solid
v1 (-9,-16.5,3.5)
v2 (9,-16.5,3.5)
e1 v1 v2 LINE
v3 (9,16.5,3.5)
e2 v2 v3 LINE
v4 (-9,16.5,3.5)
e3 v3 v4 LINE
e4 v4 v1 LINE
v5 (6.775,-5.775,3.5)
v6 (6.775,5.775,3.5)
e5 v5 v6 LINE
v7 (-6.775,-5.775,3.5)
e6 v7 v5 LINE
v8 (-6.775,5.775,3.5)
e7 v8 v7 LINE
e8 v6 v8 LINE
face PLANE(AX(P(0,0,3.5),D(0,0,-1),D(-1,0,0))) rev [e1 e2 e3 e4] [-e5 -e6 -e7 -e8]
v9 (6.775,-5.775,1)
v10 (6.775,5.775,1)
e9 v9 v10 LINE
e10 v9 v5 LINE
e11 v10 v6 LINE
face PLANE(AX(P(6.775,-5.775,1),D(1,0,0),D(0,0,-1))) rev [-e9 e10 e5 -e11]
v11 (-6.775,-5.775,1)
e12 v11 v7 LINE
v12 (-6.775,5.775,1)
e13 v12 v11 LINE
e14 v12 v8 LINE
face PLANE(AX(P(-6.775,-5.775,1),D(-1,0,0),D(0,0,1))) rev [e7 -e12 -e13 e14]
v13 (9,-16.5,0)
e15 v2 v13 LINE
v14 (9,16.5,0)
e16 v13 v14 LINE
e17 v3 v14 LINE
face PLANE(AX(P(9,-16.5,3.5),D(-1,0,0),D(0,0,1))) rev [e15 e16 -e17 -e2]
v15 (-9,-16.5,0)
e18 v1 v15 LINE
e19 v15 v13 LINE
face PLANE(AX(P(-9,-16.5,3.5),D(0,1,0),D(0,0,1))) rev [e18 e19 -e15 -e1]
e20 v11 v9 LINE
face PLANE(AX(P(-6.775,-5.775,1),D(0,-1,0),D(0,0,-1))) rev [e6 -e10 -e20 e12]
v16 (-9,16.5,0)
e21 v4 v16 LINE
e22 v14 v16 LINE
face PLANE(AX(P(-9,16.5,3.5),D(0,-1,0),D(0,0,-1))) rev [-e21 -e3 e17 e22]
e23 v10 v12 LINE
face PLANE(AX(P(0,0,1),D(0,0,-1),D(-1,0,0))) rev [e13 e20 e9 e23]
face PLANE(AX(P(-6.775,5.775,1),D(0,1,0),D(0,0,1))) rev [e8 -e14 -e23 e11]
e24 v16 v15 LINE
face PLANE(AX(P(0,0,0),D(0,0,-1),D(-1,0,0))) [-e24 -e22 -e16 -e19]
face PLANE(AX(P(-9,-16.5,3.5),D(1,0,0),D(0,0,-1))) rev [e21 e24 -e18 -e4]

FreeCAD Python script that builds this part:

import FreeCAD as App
import Part
import Sketcher

V = App.Vector


def add_polygon(sketch, points):
    """Adds a closed chain of lines whose ends are joined by coincident constraints."""
    first, n = sketch.GeometryCount, len(points)
    for a, b in zip(points, points[1:] + points[:1]):
        sketch.addGeometry(Part.LineSegment(App.Vector(*a, 0), App.Vector(*b, 0)), False)
    for i in range(n):
        sketch.addConstraint(Sketcher.Constraint("Coincident", first + i, 2, first + (i + 1) % n, 1))

doc = App.newDocument("Part")
body = doc.addObject("PartDesign::Body", "Body")

sketch1 = doc.addObject("Sketcher::SketchObject", "Sketch")
body.addObject(sketch1)
sketch1.AttachmentSupport = (doc.XY_Plane, [""])
sketch1.MapMode = "FlatFace"
add_polygon(sketch1, [(-9, 16), (-9, -16), (9, -16), (9, 16)])
sketch1.addConstraint([
    Sketcher.Constraint("Vertical", 0),
    Sketcher.Constraint("Horizontal", 1),
    Sketcher.Constraint("Vertical", 2),
    Sketcher.Constraint("Horizontal", 3),
    Sketcher.Constraint("Symmetric", 0, 2, 2, 2, -1, 1),
    Sketcher.Constraint("DistanceX", 1, 1, 1, 2, 18.0),
    Sketcher.Constraint("DistanceY", 0, 2, 0, 1, 33.0),
])
pad1 = doc.addObject("PartDesign::Pad", "Pad")
body.addObject(pad1)
pad1.Profile = sketch1
pad1.Length = 3.5

sketch2 = doc.addObject("Sketcher::SketchObject", "Sketch001")
body.addObject(sketch2)
sketch2.AttachmentSupport = (doc.XY_Plane, [""])
sketch2.MapMode = "FlatFace"
sketch2.AttachmentOffset = App.Placement(V(0, 0, 3.5), App.Rotation())
add_polygon(sketch2, [(-7, 6), (-7, -6), (7, -6), (7, 6)])
sketch2.addConstraint([
    Sketcher.Constraint("Vertical", 0),
    Sketcher.Constraint("Horizontal", 1),
    Sketcher.Constraint("Vertical", 2),
    Sketcher.Constraint("Horizontal", 3),
    Sketcher.Constraint("Symmetric", 0, 2, 2, 2, -1, 1),
    Sketcher.Constraint("DistanceX", 1, 1, 1, 2, 13.55),
    Sketcher.Constraint("DistanceY", 0, 2, 0, 1, 11.55),
])
pocket1 = doc.addObject("PartDesign::Pocket", "Pocket")
body.addObject(pocket1)
pocket1.Profile = sketch2
pocket1.Length = 2.5

doc.recompute()
